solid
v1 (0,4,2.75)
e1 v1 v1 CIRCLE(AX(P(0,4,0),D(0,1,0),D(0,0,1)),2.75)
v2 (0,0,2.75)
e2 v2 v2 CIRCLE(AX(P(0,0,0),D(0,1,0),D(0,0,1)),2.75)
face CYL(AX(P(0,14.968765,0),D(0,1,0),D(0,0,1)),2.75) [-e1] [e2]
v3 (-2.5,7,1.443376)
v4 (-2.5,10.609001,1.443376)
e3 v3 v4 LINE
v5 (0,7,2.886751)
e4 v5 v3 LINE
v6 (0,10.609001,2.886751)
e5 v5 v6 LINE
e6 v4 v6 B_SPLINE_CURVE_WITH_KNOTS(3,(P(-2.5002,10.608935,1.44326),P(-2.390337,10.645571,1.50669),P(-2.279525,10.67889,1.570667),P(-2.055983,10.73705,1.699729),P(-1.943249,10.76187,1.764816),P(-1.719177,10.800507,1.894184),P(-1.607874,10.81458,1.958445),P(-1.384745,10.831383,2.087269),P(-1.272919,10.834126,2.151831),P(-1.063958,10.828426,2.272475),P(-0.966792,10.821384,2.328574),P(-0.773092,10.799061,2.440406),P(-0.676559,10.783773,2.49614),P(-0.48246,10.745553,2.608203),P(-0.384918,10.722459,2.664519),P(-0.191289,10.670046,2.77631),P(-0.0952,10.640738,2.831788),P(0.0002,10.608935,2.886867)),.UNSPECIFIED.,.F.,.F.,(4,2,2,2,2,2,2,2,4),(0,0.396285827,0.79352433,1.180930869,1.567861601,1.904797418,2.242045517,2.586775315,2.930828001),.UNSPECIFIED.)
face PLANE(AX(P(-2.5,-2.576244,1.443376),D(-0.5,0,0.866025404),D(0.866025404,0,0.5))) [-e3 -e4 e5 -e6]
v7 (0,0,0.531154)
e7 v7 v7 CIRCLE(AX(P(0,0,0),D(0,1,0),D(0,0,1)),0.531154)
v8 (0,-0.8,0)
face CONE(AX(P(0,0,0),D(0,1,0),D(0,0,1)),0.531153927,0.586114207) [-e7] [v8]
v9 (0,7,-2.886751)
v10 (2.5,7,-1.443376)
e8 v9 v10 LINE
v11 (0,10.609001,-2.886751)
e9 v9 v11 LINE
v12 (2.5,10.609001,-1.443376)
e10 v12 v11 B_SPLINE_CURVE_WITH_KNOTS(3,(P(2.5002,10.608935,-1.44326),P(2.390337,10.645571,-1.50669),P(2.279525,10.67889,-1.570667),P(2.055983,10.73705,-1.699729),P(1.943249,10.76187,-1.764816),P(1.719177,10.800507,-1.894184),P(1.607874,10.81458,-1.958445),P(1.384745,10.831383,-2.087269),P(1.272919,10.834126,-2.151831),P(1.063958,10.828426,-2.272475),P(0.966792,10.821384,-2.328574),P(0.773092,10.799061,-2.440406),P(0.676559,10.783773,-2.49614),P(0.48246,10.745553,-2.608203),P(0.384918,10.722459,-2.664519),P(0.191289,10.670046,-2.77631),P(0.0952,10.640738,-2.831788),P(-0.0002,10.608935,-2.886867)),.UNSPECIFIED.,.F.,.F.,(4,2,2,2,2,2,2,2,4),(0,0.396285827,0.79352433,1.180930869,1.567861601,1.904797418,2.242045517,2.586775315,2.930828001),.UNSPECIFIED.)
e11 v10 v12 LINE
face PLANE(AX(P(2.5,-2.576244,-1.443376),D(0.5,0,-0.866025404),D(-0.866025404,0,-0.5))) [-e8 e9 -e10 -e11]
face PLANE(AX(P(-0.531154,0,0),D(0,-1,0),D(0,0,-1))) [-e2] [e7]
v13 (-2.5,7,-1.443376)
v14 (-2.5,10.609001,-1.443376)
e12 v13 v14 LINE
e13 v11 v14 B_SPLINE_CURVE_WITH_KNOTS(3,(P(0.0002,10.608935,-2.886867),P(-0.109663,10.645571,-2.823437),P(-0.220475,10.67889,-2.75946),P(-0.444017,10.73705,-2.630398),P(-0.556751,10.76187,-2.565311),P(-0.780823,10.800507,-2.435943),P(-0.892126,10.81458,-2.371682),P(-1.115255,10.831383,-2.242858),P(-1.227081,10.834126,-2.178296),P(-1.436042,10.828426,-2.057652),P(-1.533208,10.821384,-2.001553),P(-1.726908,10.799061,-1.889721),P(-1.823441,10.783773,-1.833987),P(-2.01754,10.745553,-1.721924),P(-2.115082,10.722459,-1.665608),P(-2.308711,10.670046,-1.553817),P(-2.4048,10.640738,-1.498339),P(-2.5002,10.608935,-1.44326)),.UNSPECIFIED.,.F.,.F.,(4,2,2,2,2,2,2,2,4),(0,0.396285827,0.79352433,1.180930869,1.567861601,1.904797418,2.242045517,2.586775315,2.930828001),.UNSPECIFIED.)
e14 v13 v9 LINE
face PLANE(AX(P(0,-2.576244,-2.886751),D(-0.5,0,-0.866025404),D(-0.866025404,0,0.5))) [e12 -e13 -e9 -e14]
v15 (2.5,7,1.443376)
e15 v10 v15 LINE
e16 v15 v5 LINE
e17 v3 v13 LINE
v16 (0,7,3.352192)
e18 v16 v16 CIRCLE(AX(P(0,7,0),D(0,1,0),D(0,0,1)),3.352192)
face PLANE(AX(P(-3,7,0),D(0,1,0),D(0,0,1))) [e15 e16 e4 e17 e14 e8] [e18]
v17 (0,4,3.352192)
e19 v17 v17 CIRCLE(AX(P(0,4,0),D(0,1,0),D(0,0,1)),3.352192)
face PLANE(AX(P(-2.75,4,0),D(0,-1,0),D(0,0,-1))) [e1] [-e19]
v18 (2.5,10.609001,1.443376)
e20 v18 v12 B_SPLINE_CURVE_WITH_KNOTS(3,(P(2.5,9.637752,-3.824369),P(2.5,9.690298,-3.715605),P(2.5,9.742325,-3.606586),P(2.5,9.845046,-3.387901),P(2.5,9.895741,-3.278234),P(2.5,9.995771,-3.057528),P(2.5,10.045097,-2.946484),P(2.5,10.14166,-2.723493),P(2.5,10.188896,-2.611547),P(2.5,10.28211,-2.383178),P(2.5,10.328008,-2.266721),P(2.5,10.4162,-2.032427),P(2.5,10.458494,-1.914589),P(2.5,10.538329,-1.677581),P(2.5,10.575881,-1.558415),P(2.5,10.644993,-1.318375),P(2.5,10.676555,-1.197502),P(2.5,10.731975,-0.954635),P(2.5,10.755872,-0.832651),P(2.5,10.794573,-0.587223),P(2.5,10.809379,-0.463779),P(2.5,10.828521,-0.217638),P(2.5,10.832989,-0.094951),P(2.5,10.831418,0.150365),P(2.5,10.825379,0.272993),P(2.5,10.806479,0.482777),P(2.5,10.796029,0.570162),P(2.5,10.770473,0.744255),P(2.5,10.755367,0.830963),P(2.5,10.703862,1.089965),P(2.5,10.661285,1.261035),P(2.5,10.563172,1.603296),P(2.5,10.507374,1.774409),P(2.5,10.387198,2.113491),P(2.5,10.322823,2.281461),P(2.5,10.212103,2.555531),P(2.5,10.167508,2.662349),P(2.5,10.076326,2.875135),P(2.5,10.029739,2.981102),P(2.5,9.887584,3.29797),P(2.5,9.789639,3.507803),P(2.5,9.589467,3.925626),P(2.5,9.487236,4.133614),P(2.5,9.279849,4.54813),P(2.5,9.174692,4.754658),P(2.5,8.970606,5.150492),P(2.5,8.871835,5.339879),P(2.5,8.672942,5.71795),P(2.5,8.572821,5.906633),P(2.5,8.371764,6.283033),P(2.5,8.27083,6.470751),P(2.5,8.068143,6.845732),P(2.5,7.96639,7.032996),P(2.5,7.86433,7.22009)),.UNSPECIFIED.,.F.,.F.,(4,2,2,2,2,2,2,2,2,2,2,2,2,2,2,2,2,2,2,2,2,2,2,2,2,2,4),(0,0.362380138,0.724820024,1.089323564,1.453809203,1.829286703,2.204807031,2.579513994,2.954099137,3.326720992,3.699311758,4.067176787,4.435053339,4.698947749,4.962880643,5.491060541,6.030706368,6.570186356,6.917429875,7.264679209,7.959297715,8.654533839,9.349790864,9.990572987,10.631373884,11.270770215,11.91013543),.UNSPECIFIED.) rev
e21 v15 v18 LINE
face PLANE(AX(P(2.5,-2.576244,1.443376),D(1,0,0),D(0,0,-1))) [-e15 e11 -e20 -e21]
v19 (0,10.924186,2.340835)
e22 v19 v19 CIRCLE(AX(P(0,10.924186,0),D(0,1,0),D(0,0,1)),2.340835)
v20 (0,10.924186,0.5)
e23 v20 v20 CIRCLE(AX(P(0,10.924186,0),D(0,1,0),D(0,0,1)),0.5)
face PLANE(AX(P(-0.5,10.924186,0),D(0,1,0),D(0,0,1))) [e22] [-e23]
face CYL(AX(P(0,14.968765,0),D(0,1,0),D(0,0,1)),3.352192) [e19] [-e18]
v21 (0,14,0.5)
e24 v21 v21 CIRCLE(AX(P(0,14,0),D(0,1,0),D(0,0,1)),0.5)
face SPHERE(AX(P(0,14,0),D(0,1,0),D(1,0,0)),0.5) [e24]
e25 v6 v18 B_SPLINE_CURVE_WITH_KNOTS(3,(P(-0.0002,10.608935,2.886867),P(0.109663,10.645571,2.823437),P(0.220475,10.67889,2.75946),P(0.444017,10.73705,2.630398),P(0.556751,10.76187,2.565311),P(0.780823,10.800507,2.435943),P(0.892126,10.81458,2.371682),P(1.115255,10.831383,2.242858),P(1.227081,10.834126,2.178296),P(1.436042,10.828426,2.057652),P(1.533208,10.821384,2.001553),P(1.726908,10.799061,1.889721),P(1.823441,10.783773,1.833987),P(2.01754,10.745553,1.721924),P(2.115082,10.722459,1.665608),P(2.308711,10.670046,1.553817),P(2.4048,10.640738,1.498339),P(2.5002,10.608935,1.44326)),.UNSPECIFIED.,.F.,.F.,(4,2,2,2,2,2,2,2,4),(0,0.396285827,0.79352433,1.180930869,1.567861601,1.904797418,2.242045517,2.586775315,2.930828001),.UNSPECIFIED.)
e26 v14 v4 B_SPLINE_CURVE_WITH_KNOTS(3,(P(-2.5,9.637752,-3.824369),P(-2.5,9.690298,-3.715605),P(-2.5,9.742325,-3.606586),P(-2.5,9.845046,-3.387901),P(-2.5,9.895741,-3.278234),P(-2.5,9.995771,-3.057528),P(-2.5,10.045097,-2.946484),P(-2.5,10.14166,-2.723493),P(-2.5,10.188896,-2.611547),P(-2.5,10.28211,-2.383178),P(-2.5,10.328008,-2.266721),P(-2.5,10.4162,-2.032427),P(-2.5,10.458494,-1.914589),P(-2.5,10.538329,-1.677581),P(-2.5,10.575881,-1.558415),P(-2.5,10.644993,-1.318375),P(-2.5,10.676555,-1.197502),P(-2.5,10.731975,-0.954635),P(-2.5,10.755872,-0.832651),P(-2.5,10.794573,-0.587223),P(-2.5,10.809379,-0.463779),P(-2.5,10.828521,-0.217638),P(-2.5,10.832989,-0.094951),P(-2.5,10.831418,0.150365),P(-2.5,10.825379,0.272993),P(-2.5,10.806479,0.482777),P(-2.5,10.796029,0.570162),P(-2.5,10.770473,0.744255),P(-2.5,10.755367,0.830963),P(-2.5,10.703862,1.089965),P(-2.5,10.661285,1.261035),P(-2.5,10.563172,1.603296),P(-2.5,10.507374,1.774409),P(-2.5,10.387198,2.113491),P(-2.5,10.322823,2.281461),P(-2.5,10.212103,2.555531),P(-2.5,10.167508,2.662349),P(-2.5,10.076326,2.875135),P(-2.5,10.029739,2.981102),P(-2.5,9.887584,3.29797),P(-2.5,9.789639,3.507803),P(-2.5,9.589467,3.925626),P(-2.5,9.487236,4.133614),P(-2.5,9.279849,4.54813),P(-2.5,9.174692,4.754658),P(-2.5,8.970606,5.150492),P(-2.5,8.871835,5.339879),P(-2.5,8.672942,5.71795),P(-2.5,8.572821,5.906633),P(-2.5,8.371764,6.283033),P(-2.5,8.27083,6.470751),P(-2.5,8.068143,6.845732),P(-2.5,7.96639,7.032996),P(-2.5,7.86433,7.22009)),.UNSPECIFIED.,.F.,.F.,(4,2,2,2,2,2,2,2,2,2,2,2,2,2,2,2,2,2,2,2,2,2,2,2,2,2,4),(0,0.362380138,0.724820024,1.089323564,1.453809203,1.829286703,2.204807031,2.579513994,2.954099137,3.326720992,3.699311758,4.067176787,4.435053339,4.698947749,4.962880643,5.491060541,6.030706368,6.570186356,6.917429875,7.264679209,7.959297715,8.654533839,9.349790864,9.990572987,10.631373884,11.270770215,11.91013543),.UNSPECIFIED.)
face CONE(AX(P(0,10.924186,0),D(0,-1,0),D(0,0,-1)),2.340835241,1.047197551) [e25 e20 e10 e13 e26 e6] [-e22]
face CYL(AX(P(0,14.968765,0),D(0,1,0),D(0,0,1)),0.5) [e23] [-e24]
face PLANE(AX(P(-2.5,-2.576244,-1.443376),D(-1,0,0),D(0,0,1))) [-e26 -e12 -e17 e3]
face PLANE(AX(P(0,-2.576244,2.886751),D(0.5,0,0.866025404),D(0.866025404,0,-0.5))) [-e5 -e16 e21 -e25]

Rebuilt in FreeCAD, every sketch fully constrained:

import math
import FreeCAD as App
import Part
import Sketcher
from FreeCAD import Vector
Q = App.Units.Quantity

doc = App.newDocument("Part")
body = doc.addObject("PartDesign::Body", "Body")

sketch1 = doc.addObject("Sketcher::SketchObject", "Sketch")
body.addObject(sketch1)
sketch1.AttachmentSupport = (doc.XY_Plane, [""])
sketch1.MapMode = "FlatFace"
sketch1.addGeometry([
    Part.LineSegment(Vector(-2.75, 0, 0), Vector(-0.53, 0, 0)),
    Part.LineSegment(Vector(-0.53, 0, 0), Vector(0, -0.8, 0)),
    Part.LineSegment(Vector(0, -0.8, 0), Vector(0, 14.5, 0)),
    Part.ArcOfCircle(Part.Circle(Vector(0, 14, 0), Vector(0, 0, 1), 0.5), math.radians(90), math.radians(180)),
    Part.LineSegment(Vector(-0.5, 14, 0), Vector(-0.5, 10.92, 0)),
    Part.LineSegment(Vector(-0.5, 10.92, 0), Vector(-2.34, 10.92, 0)),
    Part.LineSegment(Vector(-2.34, 10.92, 0), Vector(-3, 10.54, 0)),
    Part.LineSegment(Vector(-3, 10.54, 0), Vector(-3, 7, 0)),
    Part.LineSegment(Vector(-3, 7, 0), Vector(-3.35, 7, 0)),
    Part.LineSegment(Vector(-3.35, 7, 0), Vector(-3.35, 4, 0)),
    Part.LineSegment(Vector(-3.35, 4, 0), Vector(-2.75, 4, 0)),
    Part.LineSegment(Vector(-2.75, 4, 0), Vector(-2.75, 0, 0)),
], False)
sketch1.addConstraint([
    Sketcher.Constraint("Coincident", 0, 2, 1, 1),
    Sketcher.Constraint("Coincident", 1, 2, 2, 1),
    Sketcher.Constraint("Coincident", 2, 2, 3, 1),
    Sketcher.Constraint("Tangent", 3, 2, 4, 1),
    Sketcher.Constraint("Coincident", 4, 2, 5, 1),
    Sketcher.Constraint("Coincident", 5, 2, 6, 1),
    Sketcher.Constraint("Coincident", 6, 2, 7, 1),
    Sketcher.Constraint("Coincident", 7, 2, 8, 1),
    Sketcher.Constraint("Coincident", 8, 2, 9, 1),
    Sketcher.Constraint("Coincident", 9, 2, 10, 1),
    Sketcher.Constraint("Coincident", 10, 2, 11, 1),
    Sketcher.Constraint("Coincident", 11, 2, 0, 1),
    Sketcher.Constraint("Horizontal", 0),
    Sketcher.Constraint("Vertical", 2),
    Sketcher.Constraint("Vertical", 4),
    Sketcher.Constraint("Horizontal", 5),
    Sketcher.Constraint("Vertical", 7),
    Sketcher.Constraint("Horizontal", 8),
    Sketcher.Constraint("Vertical", 9),
    Sketcher.Constraint("Horizontal", 10),
    Sketcher.Constraint("Vertical", 11),
    Sketcher.Constraint("PointOnObject", 3, 3, -2),
    Sketcher.Constraint("PointOnObject", 0, 2, -1),
    Sketcher.Constraint("PointOnObject", 1, 2, -2),
    Sketcher.Constraint("Radius", 3, Q("0.5 mm")),
    Sketcher.Constraint("DistanceY", 9, 2, 9, 1, Q("3 mm")),
    Sketcher.Constraint("DistanceY", 11, 2, 11, 1, Q("4 mm")),
    Sketcher.Constraint("Angle", 6, Q("-150 deg")),
    Sketcher.Constraint("DistanceY", 2, 1, 2, 2, Q("15.3 mm")),
    Sketcher.Constraint("DistanceY", -1, 1, 3, 3, Q("14 mm")),
    Sketcher.Constraint("DistanceX", 6, 2, -1, 1, Q("3 mm")),
    Sketcher.Constraint("DistanceX", 10, 2, -1, 1, Q("2.75 mm")),
    Sketcher.Constraint("DistanceX", 8, 2, 8, 1, Q("0.352192 mm")),
    Sketcher.Constraint("DistanceX", 0, 1, 0, 2, Q("2.218846 mm")),
    Sketcher.Constraint("DistanceX", 5, 2, 5, 1, Q("1.840835 mm")),
    Sketcher.Constraint("DistanceY", 4, 2, 4, 1, Q("3.075814 mm")),
])
revolution = doc.addObject("PartDesign::Revolution", "Revolution")
body.addObject(revolution)
revolution.Profile = sketch1
revolution.ReferenceAxis = (sketch1, ["V_Axis"])
revolution.Angle = 360

sketch2 = doc.addObject("Sketcher::SketchObject", "Sketch001")
body.addObject(sketch2)
sketch2.AttachmentSupport = (doc.XZ_Plane, [""])
sketch2.MapMode = "FlatFace"
sketch2.AttachmentOffset = App.Placement(Vector(0, 0, -10.924186), App.Rotation())
sketch2.addGeometry([
    Part.LineSegment(Vector(6.2, 6.2, 0), Vector(6.2, -6.2, 0)),
    Part.LineSegment(Vector(6.2, -6.2, 0), Vector(-6.2, -6.2, 0)),
    Part.LineSegment(Vector(-6.2, -6.2, 0), Vector(-6.2, 6.2, 0)),
    Part.LineSegment(Vector(-6.2, 6.2, 0), Vector(6.2, 6.2, 0)),
    Part.LineSegment(Vector(2.5, 1.4, 0), Vector(0, 2.9, 0)),
    Part.LineSegment(Vector(0, 2.9, 0), Vector(-2.5, 1.4, 0)),
    Part.LineSegment(Vector(-2.5, 1.4, 0), Vector(-2.5, -1.4, 0)),
    Part.LineSegment(Vector(-2.5, -1.4, 0), Vector(0, -2.9, 0)),
    Part.LineSegment(Vector(0, -2.9, 0), Vector(2.5, -1.4, 0)),
    Part.LineSegment(Vector(2.5, -1.4, 0), Vector(2.5, 1.4, 0)),
], False)
sketch2.addConstraint([
    Sketcher.Constraint("Coincident", 0, 2, 1, 1),
    Sketcher.Constraint("Coincident", 1, 2, 2, 1),
    Sketcher.Constraint("Coincident", 2, 2, 3, 1),
    Sketcher.Constraint("Coincident", 3, 2, 0, 1),
    Sketcher.Constraint("Coincident", 4, 2, 5, 1),
    Sketcher.Constraint("Coincident", 5, 2, 6, 1),
    Sketcher.Constraint("Coincident", 6, 2, 7, 1),
    Sketcher.Constraint("Coincident", 7, 2, 8, 1),
    Sketcher.Constraint("Coincident", 8, 2, 9, 1),
    Sketcher.Constraint("Coincident", 9, 2, 4, 1),
    Sketcher.Constraint("Vertical", 0),
    Sketcher.Constraint("Horizontal", 1),
    Sketcher.Constraint("Vertical", 2),
    Sketcher.Constraint("Horizontal", 3),
    Sketcher.Constraint("Vertical", 6),
    Sketcher.Constraint("Vertical", 9),
    Sketcher.Constraint("Symmetric", 0, 2, 2, 2, -1, 1),
    Sketcher.Constraint("Symmetric", 4, 2, 7, 2, -1, 1),
    Sketcher.Constraint("Symmetric", 5, 2, 8, 2, -1, 1),
    Sketcher.Constraint("PointOnObject", 4, 2, -2),
    Sketcher.Constraint("Parallel", 4, 7),
    Sketcher.Constraint("Horizontal", 6, 2, 8, 2),
    Sketcher.Constraint("Equal", 3, 0),
    Sketcher.Constraint("Angle", 4, Q("150 deg")),
    Sketcher.Constraint("DistanceX", 6, 2, 8, 2, Q("5 mm")),
    Sketcher.Constraint("DistanceX", 1, 2, 1, 1, Q("12.304 mm")),
    Sketcher.Constraint("DistanceY", 6, 2, 6, 1, Q("2.886751 mm")),
])
pocket1 = doc.addObject("PartDesign::Pocket", "Pocket")
body.addObject(pocket1)
pocket1.Profile = sketch2
pocket1.Length = 3.924186
pocket1.Reversed = True

doc.recompute()
